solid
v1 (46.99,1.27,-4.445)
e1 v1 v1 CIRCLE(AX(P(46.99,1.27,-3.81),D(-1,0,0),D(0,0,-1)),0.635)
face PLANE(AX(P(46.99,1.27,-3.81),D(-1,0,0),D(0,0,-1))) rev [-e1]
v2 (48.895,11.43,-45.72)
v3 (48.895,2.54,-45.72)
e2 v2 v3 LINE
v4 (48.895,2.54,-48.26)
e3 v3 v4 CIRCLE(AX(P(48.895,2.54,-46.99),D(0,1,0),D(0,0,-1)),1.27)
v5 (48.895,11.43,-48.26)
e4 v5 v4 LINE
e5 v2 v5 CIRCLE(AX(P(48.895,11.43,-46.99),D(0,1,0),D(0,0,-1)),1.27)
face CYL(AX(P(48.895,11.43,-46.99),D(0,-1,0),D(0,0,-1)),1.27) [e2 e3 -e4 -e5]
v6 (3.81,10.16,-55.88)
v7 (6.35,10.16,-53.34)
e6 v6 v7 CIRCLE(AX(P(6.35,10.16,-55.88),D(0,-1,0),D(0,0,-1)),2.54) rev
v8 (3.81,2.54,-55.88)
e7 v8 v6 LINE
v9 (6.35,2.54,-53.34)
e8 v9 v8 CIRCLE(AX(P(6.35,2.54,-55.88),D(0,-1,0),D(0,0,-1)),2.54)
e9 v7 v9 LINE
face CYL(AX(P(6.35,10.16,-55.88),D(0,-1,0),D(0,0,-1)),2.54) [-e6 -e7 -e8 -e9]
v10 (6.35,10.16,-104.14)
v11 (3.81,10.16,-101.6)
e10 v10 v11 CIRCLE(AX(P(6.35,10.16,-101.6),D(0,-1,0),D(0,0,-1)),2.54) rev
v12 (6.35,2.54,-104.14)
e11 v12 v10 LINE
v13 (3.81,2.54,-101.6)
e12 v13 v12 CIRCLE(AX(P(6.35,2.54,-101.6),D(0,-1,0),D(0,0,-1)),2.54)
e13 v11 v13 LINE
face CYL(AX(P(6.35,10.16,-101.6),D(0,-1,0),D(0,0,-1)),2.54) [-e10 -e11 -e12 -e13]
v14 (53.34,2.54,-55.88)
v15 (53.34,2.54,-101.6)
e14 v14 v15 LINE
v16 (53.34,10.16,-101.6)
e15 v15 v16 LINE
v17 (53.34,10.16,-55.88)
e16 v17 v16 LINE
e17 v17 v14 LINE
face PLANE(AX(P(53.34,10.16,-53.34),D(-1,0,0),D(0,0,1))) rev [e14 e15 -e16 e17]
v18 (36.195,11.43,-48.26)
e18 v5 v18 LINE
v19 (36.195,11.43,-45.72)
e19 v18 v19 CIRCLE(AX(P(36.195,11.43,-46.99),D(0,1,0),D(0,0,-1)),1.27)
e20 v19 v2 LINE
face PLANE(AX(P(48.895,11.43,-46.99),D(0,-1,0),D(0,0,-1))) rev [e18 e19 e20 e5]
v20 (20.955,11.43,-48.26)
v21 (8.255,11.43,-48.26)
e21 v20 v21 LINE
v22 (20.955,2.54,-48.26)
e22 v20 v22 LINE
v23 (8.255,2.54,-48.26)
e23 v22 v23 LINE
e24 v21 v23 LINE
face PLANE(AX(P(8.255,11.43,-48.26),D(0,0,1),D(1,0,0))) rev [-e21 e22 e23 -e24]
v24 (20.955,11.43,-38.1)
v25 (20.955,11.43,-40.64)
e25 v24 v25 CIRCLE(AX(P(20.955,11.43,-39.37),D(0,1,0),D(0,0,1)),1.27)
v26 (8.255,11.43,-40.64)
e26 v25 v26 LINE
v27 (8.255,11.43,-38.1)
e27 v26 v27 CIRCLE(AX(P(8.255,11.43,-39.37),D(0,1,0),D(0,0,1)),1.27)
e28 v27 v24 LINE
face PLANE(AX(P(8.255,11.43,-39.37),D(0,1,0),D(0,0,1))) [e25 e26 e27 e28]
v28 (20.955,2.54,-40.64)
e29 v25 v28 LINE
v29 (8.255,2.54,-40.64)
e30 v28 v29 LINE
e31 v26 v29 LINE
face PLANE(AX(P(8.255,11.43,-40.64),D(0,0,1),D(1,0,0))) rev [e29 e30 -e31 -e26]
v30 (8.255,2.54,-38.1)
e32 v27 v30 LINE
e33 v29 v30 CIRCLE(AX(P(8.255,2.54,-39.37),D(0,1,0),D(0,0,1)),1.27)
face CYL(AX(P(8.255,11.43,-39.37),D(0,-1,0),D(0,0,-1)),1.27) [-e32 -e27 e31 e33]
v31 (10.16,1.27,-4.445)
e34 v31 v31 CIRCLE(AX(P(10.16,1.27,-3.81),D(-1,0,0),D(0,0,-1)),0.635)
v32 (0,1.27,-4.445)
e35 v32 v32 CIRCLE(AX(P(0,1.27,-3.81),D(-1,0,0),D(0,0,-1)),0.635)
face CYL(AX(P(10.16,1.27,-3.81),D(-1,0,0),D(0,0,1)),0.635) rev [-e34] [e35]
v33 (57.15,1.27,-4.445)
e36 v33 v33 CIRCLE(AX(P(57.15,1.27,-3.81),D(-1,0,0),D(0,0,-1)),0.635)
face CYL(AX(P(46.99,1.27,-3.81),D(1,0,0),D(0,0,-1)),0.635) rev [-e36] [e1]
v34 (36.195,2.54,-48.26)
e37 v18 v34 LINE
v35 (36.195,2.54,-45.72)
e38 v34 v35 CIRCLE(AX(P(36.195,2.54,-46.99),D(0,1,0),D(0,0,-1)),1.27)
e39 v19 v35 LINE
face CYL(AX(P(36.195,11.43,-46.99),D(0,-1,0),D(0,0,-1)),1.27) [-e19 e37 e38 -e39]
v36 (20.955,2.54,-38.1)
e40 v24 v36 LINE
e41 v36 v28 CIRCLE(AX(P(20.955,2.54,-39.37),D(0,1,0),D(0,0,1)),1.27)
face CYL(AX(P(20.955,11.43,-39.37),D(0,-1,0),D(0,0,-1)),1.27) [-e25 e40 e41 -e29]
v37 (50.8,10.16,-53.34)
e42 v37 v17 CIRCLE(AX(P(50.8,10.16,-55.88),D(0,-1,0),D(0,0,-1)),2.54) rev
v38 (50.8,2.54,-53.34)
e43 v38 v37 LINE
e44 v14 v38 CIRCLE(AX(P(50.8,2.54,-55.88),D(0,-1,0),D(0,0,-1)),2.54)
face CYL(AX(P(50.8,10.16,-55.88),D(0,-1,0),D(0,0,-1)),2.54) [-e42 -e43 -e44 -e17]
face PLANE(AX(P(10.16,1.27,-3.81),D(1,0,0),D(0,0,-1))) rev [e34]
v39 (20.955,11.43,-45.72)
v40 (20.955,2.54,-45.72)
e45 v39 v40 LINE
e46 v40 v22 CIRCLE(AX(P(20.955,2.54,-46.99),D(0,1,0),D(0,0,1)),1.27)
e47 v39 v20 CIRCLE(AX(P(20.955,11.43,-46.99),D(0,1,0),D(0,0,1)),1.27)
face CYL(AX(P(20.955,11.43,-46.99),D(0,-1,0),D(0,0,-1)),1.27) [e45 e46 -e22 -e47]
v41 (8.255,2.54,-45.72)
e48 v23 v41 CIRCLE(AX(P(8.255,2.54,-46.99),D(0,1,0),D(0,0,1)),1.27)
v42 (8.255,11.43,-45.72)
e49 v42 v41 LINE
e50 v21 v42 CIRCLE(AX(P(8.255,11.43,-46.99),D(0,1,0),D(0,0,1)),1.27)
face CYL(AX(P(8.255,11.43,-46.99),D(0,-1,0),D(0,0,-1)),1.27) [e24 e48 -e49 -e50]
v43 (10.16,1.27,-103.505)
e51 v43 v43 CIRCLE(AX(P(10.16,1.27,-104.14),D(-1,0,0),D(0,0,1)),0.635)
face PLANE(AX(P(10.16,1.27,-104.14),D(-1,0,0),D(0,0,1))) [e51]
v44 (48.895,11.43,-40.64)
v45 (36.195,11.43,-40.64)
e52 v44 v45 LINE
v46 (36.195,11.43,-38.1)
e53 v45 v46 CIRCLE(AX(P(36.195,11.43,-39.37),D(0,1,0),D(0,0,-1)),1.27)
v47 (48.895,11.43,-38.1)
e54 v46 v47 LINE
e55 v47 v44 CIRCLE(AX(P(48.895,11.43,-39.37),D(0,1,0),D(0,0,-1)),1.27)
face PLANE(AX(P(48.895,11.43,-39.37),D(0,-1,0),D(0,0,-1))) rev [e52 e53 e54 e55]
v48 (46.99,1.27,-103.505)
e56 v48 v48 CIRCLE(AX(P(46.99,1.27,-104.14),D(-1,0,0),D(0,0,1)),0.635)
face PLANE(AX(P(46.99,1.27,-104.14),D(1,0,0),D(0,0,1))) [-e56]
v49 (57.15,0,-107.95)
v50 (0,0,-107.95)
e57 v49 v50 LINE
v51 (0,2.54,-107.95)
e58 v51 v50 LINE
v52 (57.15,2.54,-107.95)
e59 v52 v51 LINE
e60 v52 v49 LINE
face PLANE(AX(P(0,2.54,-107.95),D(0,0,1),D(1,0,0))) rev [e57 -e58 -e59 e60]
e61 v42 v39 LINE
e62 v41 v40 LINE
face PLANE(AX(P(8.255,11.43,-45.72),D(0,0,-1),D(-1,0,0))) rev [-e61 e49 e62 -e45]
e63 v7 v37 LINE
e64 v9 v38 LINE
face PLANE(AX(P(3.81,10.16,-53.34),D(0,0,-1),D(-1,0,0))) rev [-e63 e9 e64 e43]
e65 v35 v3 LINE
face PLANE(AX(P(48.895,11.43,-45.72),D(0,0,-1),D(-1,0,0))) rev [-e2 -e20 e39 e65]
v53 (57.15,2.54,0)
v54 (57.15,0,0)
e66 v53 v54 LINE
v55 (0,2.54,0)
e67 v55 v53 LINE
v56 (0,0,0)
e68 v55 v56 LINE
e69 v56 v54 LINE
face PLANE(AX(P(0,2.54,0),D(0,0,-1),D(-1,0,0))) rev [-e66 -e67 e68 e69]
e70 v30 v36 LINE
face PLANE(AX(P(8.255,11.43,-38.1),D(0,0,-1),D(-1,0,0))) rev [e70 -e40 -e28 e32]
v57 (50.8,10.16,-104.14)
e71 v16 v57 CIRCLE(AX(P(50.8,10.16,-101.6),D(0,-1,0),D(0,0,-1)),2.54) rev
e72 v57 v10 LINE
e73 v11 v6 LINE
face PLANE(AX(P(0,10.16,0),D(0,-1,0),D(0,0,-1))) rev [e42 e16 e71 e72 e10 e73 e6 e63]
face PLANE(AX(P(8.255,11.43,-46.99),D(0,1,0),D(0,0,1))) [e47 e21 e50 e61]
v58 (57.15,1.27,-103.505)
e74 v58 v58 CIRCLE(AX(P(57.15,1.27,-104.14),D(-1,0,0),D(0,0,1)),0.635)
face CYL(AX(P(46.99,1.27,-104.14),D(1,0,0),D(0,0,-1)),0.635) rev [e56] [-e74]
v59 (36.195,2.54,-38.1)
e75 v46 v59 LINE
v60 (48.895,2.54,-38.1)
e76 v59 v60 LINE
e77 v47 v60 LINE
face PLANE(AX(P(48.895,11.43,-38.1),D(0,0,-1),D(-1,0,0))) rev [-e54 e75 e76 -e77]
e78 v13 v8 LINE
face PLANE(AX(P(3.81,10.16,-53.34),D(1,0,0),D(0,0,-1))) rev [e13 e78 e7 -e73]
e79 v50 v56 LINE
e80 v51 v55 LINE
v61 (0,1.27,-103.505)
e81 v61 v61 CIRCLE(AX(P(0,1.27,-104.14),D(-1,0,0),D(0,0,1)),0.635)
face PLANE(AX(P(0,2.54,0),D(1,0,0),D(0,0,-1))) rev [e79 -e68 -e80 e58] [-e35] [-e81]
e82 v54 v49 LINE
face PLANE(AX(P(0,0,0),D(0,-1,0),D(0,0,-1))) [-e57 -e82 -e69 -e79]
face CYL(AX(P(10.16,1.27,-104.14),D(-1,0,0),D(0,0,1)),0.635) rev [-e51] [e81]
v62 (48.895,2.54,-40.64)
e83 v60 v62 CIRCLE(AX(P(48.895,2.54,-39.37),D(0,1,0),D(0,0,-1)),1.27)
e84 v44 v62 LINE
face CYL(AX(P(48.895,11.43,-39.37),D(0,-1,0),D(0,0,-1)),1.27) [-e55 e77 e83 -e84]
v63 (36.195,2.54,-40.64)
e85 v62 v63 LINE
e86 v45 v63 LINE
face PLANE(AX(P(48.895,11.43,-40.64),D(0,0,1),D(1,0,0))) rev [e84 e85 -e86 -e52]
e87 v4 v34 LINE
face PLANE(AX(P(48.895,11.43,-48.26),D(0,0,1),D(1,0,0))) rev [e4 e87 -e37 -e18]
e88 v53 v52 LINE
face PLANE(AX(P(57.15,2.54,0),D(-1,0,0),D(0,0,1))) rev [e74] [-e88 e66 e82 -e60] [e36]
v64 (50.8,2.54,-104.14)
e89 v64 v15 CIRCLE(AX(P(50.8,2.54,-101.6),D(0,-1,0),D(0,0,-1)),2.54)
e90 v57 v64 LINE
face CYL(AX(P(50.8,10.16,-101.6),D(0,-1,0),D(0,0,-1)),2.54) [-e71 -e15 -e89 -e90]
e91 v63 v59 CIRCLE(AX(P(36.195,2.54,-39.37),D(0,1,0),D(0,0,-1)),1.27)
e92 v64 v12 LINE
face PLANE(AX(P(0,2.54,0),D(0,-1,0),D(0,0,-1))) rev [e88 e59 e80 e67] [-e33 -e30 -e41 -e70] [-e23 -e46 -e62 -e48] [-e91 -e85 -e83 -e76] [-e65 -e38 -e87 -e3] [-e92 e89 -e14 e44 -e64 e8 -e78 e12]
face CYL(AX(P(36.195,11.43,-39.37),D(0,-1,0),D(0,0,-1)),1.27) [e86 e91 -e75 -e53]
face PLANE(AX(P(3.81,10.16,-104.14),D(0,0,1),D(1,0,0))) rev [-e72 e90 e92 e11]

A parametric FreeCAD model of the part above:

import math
import FreeCAD as App
import Part
import Sketcher
Q = App.Units.Quantity


def edges_at(feature, points):
    """Names of the edges that pass closest to the given points."""
    edges = feature.Shape.Edges
    near = lambda p: min(range(len(edges)), key=lambda i: edges[i].distToShape(Part.Vertex(*p))[0])
    return sorted({f"Edge{near(p) + 1}" for p in points})


def add_polygon(sketch, points):
    """Adds a closed chain of lines whose ends are joined by coincident constraints."""
    first, n = sketch.GeometryCount, len(points)
    for a, b in zip(points, points[1:] + points[:1]):
        sketch.addGeometry(Part.LineSegment(App.Vector(*a, 0), App.Vector(*b, 0)), False)
    for i in range(n):
        sketch.addConstraint(Sketcher.Constraint("Coincident", first + i, 2, first + (i + 1) % n, 1))

doc = App.newDocument("Part")
params = doc.addObject("Spreadsheet::Sheet", "Params")
for row, (alias, value) in enumerate([
    ("sketch1_width", "2.25 in"),
    ("sketch1_height", "4.25 in"),
    ("pad1_length", "0.1 in"),
    ("sketch2_radius", "0.05 in"),
    ("sketch2_width", "0.5 in"),
    ("pad2_length", "0.35 in"),
    ("sketch3_diameter", "0.05 in"),
    ("pocket1_length", "0.4 in"),
    ("sketch4_height", "2 in"),
    ("sketch4_width", "1.95 in"),
    ("pad3_length", "0.3 in"),
    ("fillet_radius", "0.1 in"),
], start=1):
    params.set(f"A{row}", alias)
    params.set(f"B{row}", "=" + value)
    params.setAlias(f"B{row}", alias)

body = doc.addObject("PartDesign::Body", "Body")

sketch1 = body.newObject("Sketcher::SketchObject", "Sketch")
sketch1.AttachmentSupport = (doc.getObject("XZ_Plane"), [""])
sketch1.MapMode = "FlatFace"
add_polygon(sketch1, [(0, -107.95), (0, 0), (57.15, 0), (57.15, -107.95)])
sketch1.addConstraint([
    Sketcher.Constraint("Vertical", 0),
    Sketcher.Constraint("Horizontal", 1),
    Sketcher.Constraint("Vertical", 2),
    Sketcher.Constraint("Horizontal", 3),
    Sketcher.Constraint("Coincident", 0, 2, -1, 1),
    Sketcher.Constraint("DistanceX", 1, 1, 1, 2, Q("2.25 in")),
    Sketcher.Constraint("DistanceY", 0, 1, 0, 2, Q("4.25 in")),
])
sketch1.setExpression("Constraints[9]", "Params.sketch1_width")
sketch1.setExpression("Constraints[10]", "Params.sketch1_height")
pad1 = body.newObject("PartDesign::Pad", "Pad")
pad1.Profile = sketch1
pad1.setExpression("Length", "Params.pad1_length")
pad1.Reversed = True

sketch2 = body.newObject("Sketcher::SketchObject", "Sketch001")
sketch2.AttachmentSupport = (doc.getObject("XZ_Plane"), [""])
sketch2.MapMode = "FlatFace"
sketch2.AttachmentOffset = App.Placement(App.Vector(0, 0, -0.1 * 25.4), App.Rotation())
sketch2.addGeometry([
    Part.LineSegment(App.Vector(20.955, -40.64, 0), App.Vector(8.255, -40.64, 0)),
    Part.ArcOfCircle(Part.Circle(App.Vector(8.255, -39.37, 0), App.Vector(0, 0, 1), 1.27), math.radians(90), math.radians(270)),
    Part.LineSegment(App.Vector(8.255, -38.1, 0), App.Vector(20.955, -38.1, 0)),
    Part.ArcOfCircle(Part.Circle(App.Vector(20.955, -39.37, 0), App.Vector(0, 0, 1), 1.27), math.radians(-90), math.radians(90)),
    Part.LineSegment(App.Vector(48.895, -40.64, 0), App.Vector(36.195, -40.64, 0)),
    Part.ArcOfCircle(Part.Circle(App.Vector(36.195, -39.37, 0), App.Vector(0, 0, 1), 1.27), math.radians(90), math.radians(270)),
    Part.LineSegment(App.Vector(36.195, -38.1, 0), App.Vector(48.895, -38.1, 0)),
    Part.ArcOfCircle(Part.Circle(App.Vector(48.895, -39.37, 0), App.Vector(0, 0, 1), 1.27), math.radians(-90), math.radians(90)),
    Part.LineSegment(App.Vector(20.955, -48.26, 0), App.Vector(8.255, -48.26, 0)),
    Part.ArcOfCircle(Part.Circle(App.Vector(8.255, -46.99, 0), App.Vector(0, 0, 1), 1.27), math.radians(90), math.radians(270)),
    Part.LineSegment(App.Vector(8.255, -45.72, 0), App.Vector(20.955, -45.72, 0)),
    Part.ArcOfCircle(Part.Circle(App.Vector(20.955, -46.99, 0), App.Vector(0, 0, 1), 1.27), math.radians(-90), math.radians(90)),
    Part.LineSegment(App.Vector(48.895, -48.26, 0), App.Vector(36.195, -48.26, 0)),
    Part.ArcOfCircle(Part.Circle(App.Vector(36.195, -46.99, 0), App.Vector(0, 0, 1), 1.27), math.radians(90), math.radians(270)),
    Part.LineSegment(App.Vector(36.195, -45.72, 0), App.Vector(48.895, -45.72, 0)),
    Part.ArcOfCircle(Part.Circle(App.Vector(48.895, -46.99, 0), App.Vector(0, 0, 1), 1.27), math.radians(-90), math.radians(90)),
], False)
sketch2.addConstraint([
    Sketcher.Constraint("Tangent", 0, 2, 1, 2),
    Sketcher.Constraint("Tangent", 1, 1, 2, 1),
    Sketcher.Constraint("Tangent", 2, 2, 3, 2),
    Sketcher.Constraint("Tangent", 3, 1, 0, 1),
    Sketcher.Constraint("Tangent", 4, 2, 5, 2),
    Sketcher.Constraint("Tangent", 5, 1, 6, 1),
    Sketcher.Constraint("Tangent", 6, 2, 7, 2),
    Sketcher.Constraint("Tangent", 7, 1, 4, 1),
    Sketcher.Constraint("Tangent", 8, 2, 9, 2),
    Sketcher.Constraint("Tangent", 9, 1, 10, 1),
    Sketcher.Constraint("Tangent", 10, 2, 11, 2),
    Sketcher.Constraint("Tangent", 11, 1, 8, 1),
    Sketcher.Constraint("Tangent", 12, 2, 13, 2),
    Sketcher.Constraint("Tangent", 13, 1, 14, 1),
    Sketcher.Constraint("Tangent", 14, 2, 15, 2),
    Sketcher.Constraint("Tangent", 15, 1, 12, 1),
    Sketcher.Constraint("Horizontal", 0),
    Sketcher.Constraint("Horizontal", 2),
    Sketcher.Constraint("Horizontal", 4),
    Sketcher.Constraint("Horizontal", 6),
    Sketcher.Constraint("Horizontal", 8),
    Sketcher.Constraint("Horizontal", 10),
    Sketcher.Constraint("Horizontal", 12),
    Sketcher.Constraint("Horizontal", 14),
    Sketcher.Constraint("Equal", 3, 5),
    Sketcher.Constraint("Equal", 7, 9),
    Sketcher.Constraint("Equal", 11, 13),
    Sketcher.Constraint("Horizontal", 3, 3, 5, 3),
    Sketcher.Constraint("Horizontal", 11, 3, 13, 3),
    Sketcher.Constraint("Vertical", 1, 3, 9, 3),
    Sketcher.Constraint("Vertical", 3, 3, 11, 3),
    Sketcher.Constraint("Vertical", 5, 3, 13, 3),
    Sketcher.Constraint("Vertical", 7, 3, 15, 3),
    Sketcher.Constraint("Equal", 2, 4),
    Sketcher.Constraint("Radius", 1, Q("0.05 in")),
    Sketcher.Constraint("DistanceX", 0, 2, 0, 1, Q("0.5 in")),
    Sketcher.Constraint("DistanceY", 0, 2, -1, 1, Q("1.6 in")),
    Sketcher.Constraint("DistanceY", 8, 2, -1, 1, Q("1.9 in")),
    Sketcher.Constraint("DistanceX", 3, 3, 5, 3, Q("0.6 in")),
    Sketcher.Constraint("DistanceX", -1, 1, 1, 3, Q("0.325 in")),
])
sketch2.setExpression("Constraints[34]", "Params.sketch2_radius")
sketch2.setExpression("Constraints[35]", "Params.sketch2_width")
pad2 = body.newObject("PartDesign::Pad", "Pad001")
pad2.Profile = sketch2
pad2.setExpression("Length", "Params.pad2_length")
pad2.Reversed = True

sketch3 = body.newObject("Sketcher::SketchObject", "Sketch002")
sketch3.AttachmentSupport = (doc.getObject("YZ_Plane"), [""])
sketch3.MapMode = "FlatFace"
sketch3.addGeometry([
    Part.Circle(App.Vector(1.27, -104.14, 0), App.Vector(0, 0, 1), 0.635),
    Part.Circle(App.Vector(1.27, -3.81, 0), App.Vector(0, 0, 1), 0.635),
], False)
sketch3.addConstraint([
    Sketcher.Constraint("Equal", 0, 1),
    Sketcher.Constraint("Vertical", 0, 3, 1, 3),
    Sketcher.Constraint("Diameter", 0, Q("0.05 in")),
    Sketcher.Constraint("DistanceY", 0, 3, -1, 1, Q("4.1 in")),
    Sketcher.Constraint("DistanceX", -1, 1, 0, 3, Q("0.05 in")),
    Sketcher.Constraint("DistanceY", 1, 3, -1, 1, Q("0.15 in")),
])
sketch3.setExpression("Constraints[2]", "Params.sketch3_diameter")
pocket1 = body.newObject("PartDesign::Pocket", "Pocket")
pocket1.Profile = sketch3
pocket1.setExpression("Length", "Params.pocket1_length")
pocket1.Reversed = True
doc.recompute()

datumplane = body.newObject("PartDesign::Plane", "DatumPlane")
datumplane.AttachmentSupport = (doc.getObject("YZ_Plane"), [""])
datumplane.MapMode = "FlatFace"
datumplane.AttachmentOffset = App.Placement(App.Vector(0, 0, 1.125 * 25.4), App.Rotation())
mirrored = body.newObject("PartDesign::Mirrored", "Mirrored")
mirrored.Originals = [pocket1]
mirrored.MirrorPlane = (datumplane, [""])
body.Tip = mirrored

sketch4 = body.newObject("Sketcher::SketchObject", "Sketch003")
sketch4.AttachmentSupport = (doc.getObject("XZ_Plane"), [""])
sketch4.MapMode = "FlatFace"
sketch4.AttachmentOffset = App.Placement(App.Vector(0, 0, -0.1 * 25.4), App.Rotation())
add_polygon(sketch4, [(3.81, -104.14), (3.81, -53.34), (53.34, -53.34), (53.34, -104.14)])
sketch4.addConstraint([
    Sketcher.Constraint("Vertical", 0),
    Sketcher.Constraint("Horizontal", 1),
    Sketcher.Constraint("Vertical", 2),
    Sketcher.Constraint("Horizontal", 3),
    Sketcher.Constraint("DistanceY", 0, 1, 0, 2, Q("2 in")),
    Sketcher.Constraint("DistanceX", 1, 1, 1, 2, Q("1.95 in")),
    Sketcher.Constraint("DistanceY", 0, 2, -1, 1, Q("2.1 in")),
    Sketcher.Constraint("DistanceX", -1, 1, 1, 2, Q("2.1 in")),
])
sketch4.setExpression("Constraints[8]", "Params.sketch4_height")
sketch4.setExpression("Constraints[9]", "Params.sketch4_width")
pad3 = body.newObject("PartDesign::Pad", "Pad002")
pad3.Profile = sketch4
pad3.setExpression("Length", "Params.pad3_length")
pad3.Reversed = True
doc.recompute()

fillet = body.newObject("PartDesign::Fillet", "Fillet")
fillet.Base = (pad3, edges_at(pad3, [
    (53.34, 6.35, -53.34),
    (53.34, 6.35, -104.14),
    (3.81, 6.35, -104.14),
    (3.81, 6.35, -53.34),
]))
fillet.setExpression("Radius", "Params.fillet_radius")

doc.recompute()
